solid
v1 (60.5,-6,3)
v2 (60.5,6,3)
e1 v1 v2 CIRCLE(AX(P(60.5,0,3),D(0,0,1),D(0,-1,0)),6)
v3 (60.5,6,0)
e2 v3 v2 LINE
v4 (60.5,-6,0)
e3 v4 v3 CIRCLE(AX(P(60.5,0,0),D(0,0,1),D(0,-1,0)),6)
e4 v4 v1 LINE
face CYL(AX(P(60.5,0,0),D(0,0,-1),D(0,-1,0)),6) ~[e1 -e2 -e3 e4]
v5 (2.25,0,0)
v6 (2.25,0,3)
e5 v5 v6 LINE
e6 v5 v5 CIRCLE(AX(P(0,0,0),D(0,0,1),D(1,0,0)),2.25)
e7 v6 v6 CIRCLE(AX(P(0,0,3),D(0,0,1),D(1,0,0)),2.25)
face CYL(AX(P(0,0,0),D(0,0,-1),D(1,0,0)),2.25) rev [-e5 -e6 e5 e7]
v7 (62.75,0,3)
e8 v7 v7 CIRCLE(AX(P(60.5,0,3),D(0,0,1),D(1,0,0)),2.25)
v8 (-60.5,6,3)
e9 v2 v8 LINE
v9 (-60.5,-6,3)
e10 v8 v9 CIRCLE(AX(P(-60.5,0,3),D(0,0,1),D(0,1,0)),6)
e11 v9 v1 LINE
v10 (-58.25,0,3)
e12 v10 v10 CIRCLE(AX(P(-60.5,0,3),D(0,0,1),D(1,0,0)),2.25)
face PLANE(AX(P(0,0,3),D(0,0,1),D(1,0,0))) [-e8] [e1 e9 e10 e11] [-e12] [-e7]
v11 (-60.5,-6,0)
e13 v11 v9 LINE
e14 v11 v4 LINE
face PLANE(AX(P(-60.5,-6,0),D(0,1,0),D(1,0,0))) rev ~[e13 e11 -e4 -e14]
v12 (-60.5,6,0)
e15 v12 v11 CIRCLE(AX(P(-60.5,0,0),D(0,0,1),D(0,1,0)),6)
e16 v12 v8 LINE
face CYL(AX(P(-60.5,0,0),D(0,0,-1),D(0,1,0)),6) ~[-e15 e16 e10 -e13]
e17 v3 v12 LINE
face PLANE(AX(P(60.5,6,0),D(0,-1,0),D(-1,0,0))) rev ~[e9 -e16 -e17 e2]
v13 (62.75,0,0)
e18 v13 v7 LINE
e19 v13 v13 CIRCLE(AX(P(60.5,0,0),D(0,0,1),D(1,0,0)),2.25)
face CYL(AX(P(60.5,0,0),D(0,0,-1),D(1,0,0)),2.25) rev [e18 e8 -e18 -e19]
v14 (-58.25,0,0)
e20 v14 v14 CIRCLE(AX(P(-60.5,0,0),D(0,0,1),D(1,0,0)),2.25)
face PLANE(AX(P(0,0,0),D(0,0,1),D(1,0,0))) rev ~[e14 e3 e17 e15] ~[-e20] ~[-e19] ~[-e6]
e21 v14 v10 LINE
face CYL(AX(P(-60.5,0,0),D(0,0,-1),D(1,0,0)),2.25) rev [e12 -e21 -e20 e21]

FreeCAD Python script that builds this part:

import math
import FreeCAD as App
import Part
import Sketcher

doc = App.newDocument("Part")
body = doc.addObject("PartDesign::Body", "Body")

# Sketch on XY plane
sketch1 = body.newObject("Sketcher::SketchObject", "Sketch")
sketch1.AttachmentSupport = (doc.getObject("XY_Plane"), [""])
sketch1.MapMode = "FlatFace"
sketch1.addGeometry(Part.ArcOfCircle(Part.Circle(App.Vector(-60.5, 0, 0), App.Vector(0, 0, 1), 6), math.radians(90), math.radians(270)), False)
sketch1.addGeometry(Part.LineSegment(App.Vector(-60.5, -6, 0), App.Vector(60.5, -6, 0)), False)
sketch1.addGeometry(Part.ArcOfCircle(Part.Circle(App.Vector(60.5, 0, 0), App.Vector(0, 0, 1), 6), math.radians(-90), math.radians(90)), False)
sketch1.addGeometry(Part.LineSegment(App.Vector(60.5, 6, 0), App.Vector(-60.5, 6, 0)), False)
sketch1.addGeometry(Part.Circle(App.Vector(-60.5, 0, 0), App.Vector(0, 0, 1), 2.25), False)
sketch1.addGeometry(Part.Circle(App.Vector(0, 0, 0), App.Vector(0, 0, 1), 2.25), False)
sketch1.addGeometry(Part.Circle(App.Vector(60.5, 0, 0), App.Vector(0, 0, 1), 2.25), False)
sketch1.addConstraint(Sketcher.Constraint("Tangent", 0, 2, 1, 1))
sketch1.addConstraint(Sketcher.Constraint("Tangent", 1, 2, 2, 1))
sketch1.addConstraint(Sketcher.Constraint("Tangent", 2, 2, 3, 1))
sketch1.addConstraint(Sketcher.Constraint("Tangent", 3, 2, 0, 1))
sketch1.addConstraint(Sketcher.Constraint("Horizontal", 1))
sketch1.addConstraint(Sketcher.Constraint("Horizontal", 3))
sketch1.addConstraint(Sketcher.Constraint("Coincident", 5, 3, -1, 1))
sketch1.addConstraint(Sketcher.Constraint("Coincident", 4, 3, 0, 3))
sketch1.addConstraint(Sketcher.Constraint("Coincident", 6, 3, 2, 3))
sketch1.addConstraint(Sketcher.Constraint("Equal", 4, 5))
sketch1.addConstraint(Sketcher.Constraint("Equal", 5, 6))
sketch1.addConstraint(Sketcher.Constraint("Symmetric", 0, 3, 2, 3, -1, 1))
sketch1.addConstraint(Sketcher.Constraint("Radius", 0, 6.0))
sketch1.addConstraint(Sketcher.Constraint("Diameter", 4, 4.5))
sketch1.addConstraint(Sketcher.Constraint("DistanceX", 1, 1, 1, 2, 121.0))
pad1 = body.newObject("PartDesign::Pad", "Pad")
pad1.Profile = sketch1
pad1.Length = 3

doc.recompute()
